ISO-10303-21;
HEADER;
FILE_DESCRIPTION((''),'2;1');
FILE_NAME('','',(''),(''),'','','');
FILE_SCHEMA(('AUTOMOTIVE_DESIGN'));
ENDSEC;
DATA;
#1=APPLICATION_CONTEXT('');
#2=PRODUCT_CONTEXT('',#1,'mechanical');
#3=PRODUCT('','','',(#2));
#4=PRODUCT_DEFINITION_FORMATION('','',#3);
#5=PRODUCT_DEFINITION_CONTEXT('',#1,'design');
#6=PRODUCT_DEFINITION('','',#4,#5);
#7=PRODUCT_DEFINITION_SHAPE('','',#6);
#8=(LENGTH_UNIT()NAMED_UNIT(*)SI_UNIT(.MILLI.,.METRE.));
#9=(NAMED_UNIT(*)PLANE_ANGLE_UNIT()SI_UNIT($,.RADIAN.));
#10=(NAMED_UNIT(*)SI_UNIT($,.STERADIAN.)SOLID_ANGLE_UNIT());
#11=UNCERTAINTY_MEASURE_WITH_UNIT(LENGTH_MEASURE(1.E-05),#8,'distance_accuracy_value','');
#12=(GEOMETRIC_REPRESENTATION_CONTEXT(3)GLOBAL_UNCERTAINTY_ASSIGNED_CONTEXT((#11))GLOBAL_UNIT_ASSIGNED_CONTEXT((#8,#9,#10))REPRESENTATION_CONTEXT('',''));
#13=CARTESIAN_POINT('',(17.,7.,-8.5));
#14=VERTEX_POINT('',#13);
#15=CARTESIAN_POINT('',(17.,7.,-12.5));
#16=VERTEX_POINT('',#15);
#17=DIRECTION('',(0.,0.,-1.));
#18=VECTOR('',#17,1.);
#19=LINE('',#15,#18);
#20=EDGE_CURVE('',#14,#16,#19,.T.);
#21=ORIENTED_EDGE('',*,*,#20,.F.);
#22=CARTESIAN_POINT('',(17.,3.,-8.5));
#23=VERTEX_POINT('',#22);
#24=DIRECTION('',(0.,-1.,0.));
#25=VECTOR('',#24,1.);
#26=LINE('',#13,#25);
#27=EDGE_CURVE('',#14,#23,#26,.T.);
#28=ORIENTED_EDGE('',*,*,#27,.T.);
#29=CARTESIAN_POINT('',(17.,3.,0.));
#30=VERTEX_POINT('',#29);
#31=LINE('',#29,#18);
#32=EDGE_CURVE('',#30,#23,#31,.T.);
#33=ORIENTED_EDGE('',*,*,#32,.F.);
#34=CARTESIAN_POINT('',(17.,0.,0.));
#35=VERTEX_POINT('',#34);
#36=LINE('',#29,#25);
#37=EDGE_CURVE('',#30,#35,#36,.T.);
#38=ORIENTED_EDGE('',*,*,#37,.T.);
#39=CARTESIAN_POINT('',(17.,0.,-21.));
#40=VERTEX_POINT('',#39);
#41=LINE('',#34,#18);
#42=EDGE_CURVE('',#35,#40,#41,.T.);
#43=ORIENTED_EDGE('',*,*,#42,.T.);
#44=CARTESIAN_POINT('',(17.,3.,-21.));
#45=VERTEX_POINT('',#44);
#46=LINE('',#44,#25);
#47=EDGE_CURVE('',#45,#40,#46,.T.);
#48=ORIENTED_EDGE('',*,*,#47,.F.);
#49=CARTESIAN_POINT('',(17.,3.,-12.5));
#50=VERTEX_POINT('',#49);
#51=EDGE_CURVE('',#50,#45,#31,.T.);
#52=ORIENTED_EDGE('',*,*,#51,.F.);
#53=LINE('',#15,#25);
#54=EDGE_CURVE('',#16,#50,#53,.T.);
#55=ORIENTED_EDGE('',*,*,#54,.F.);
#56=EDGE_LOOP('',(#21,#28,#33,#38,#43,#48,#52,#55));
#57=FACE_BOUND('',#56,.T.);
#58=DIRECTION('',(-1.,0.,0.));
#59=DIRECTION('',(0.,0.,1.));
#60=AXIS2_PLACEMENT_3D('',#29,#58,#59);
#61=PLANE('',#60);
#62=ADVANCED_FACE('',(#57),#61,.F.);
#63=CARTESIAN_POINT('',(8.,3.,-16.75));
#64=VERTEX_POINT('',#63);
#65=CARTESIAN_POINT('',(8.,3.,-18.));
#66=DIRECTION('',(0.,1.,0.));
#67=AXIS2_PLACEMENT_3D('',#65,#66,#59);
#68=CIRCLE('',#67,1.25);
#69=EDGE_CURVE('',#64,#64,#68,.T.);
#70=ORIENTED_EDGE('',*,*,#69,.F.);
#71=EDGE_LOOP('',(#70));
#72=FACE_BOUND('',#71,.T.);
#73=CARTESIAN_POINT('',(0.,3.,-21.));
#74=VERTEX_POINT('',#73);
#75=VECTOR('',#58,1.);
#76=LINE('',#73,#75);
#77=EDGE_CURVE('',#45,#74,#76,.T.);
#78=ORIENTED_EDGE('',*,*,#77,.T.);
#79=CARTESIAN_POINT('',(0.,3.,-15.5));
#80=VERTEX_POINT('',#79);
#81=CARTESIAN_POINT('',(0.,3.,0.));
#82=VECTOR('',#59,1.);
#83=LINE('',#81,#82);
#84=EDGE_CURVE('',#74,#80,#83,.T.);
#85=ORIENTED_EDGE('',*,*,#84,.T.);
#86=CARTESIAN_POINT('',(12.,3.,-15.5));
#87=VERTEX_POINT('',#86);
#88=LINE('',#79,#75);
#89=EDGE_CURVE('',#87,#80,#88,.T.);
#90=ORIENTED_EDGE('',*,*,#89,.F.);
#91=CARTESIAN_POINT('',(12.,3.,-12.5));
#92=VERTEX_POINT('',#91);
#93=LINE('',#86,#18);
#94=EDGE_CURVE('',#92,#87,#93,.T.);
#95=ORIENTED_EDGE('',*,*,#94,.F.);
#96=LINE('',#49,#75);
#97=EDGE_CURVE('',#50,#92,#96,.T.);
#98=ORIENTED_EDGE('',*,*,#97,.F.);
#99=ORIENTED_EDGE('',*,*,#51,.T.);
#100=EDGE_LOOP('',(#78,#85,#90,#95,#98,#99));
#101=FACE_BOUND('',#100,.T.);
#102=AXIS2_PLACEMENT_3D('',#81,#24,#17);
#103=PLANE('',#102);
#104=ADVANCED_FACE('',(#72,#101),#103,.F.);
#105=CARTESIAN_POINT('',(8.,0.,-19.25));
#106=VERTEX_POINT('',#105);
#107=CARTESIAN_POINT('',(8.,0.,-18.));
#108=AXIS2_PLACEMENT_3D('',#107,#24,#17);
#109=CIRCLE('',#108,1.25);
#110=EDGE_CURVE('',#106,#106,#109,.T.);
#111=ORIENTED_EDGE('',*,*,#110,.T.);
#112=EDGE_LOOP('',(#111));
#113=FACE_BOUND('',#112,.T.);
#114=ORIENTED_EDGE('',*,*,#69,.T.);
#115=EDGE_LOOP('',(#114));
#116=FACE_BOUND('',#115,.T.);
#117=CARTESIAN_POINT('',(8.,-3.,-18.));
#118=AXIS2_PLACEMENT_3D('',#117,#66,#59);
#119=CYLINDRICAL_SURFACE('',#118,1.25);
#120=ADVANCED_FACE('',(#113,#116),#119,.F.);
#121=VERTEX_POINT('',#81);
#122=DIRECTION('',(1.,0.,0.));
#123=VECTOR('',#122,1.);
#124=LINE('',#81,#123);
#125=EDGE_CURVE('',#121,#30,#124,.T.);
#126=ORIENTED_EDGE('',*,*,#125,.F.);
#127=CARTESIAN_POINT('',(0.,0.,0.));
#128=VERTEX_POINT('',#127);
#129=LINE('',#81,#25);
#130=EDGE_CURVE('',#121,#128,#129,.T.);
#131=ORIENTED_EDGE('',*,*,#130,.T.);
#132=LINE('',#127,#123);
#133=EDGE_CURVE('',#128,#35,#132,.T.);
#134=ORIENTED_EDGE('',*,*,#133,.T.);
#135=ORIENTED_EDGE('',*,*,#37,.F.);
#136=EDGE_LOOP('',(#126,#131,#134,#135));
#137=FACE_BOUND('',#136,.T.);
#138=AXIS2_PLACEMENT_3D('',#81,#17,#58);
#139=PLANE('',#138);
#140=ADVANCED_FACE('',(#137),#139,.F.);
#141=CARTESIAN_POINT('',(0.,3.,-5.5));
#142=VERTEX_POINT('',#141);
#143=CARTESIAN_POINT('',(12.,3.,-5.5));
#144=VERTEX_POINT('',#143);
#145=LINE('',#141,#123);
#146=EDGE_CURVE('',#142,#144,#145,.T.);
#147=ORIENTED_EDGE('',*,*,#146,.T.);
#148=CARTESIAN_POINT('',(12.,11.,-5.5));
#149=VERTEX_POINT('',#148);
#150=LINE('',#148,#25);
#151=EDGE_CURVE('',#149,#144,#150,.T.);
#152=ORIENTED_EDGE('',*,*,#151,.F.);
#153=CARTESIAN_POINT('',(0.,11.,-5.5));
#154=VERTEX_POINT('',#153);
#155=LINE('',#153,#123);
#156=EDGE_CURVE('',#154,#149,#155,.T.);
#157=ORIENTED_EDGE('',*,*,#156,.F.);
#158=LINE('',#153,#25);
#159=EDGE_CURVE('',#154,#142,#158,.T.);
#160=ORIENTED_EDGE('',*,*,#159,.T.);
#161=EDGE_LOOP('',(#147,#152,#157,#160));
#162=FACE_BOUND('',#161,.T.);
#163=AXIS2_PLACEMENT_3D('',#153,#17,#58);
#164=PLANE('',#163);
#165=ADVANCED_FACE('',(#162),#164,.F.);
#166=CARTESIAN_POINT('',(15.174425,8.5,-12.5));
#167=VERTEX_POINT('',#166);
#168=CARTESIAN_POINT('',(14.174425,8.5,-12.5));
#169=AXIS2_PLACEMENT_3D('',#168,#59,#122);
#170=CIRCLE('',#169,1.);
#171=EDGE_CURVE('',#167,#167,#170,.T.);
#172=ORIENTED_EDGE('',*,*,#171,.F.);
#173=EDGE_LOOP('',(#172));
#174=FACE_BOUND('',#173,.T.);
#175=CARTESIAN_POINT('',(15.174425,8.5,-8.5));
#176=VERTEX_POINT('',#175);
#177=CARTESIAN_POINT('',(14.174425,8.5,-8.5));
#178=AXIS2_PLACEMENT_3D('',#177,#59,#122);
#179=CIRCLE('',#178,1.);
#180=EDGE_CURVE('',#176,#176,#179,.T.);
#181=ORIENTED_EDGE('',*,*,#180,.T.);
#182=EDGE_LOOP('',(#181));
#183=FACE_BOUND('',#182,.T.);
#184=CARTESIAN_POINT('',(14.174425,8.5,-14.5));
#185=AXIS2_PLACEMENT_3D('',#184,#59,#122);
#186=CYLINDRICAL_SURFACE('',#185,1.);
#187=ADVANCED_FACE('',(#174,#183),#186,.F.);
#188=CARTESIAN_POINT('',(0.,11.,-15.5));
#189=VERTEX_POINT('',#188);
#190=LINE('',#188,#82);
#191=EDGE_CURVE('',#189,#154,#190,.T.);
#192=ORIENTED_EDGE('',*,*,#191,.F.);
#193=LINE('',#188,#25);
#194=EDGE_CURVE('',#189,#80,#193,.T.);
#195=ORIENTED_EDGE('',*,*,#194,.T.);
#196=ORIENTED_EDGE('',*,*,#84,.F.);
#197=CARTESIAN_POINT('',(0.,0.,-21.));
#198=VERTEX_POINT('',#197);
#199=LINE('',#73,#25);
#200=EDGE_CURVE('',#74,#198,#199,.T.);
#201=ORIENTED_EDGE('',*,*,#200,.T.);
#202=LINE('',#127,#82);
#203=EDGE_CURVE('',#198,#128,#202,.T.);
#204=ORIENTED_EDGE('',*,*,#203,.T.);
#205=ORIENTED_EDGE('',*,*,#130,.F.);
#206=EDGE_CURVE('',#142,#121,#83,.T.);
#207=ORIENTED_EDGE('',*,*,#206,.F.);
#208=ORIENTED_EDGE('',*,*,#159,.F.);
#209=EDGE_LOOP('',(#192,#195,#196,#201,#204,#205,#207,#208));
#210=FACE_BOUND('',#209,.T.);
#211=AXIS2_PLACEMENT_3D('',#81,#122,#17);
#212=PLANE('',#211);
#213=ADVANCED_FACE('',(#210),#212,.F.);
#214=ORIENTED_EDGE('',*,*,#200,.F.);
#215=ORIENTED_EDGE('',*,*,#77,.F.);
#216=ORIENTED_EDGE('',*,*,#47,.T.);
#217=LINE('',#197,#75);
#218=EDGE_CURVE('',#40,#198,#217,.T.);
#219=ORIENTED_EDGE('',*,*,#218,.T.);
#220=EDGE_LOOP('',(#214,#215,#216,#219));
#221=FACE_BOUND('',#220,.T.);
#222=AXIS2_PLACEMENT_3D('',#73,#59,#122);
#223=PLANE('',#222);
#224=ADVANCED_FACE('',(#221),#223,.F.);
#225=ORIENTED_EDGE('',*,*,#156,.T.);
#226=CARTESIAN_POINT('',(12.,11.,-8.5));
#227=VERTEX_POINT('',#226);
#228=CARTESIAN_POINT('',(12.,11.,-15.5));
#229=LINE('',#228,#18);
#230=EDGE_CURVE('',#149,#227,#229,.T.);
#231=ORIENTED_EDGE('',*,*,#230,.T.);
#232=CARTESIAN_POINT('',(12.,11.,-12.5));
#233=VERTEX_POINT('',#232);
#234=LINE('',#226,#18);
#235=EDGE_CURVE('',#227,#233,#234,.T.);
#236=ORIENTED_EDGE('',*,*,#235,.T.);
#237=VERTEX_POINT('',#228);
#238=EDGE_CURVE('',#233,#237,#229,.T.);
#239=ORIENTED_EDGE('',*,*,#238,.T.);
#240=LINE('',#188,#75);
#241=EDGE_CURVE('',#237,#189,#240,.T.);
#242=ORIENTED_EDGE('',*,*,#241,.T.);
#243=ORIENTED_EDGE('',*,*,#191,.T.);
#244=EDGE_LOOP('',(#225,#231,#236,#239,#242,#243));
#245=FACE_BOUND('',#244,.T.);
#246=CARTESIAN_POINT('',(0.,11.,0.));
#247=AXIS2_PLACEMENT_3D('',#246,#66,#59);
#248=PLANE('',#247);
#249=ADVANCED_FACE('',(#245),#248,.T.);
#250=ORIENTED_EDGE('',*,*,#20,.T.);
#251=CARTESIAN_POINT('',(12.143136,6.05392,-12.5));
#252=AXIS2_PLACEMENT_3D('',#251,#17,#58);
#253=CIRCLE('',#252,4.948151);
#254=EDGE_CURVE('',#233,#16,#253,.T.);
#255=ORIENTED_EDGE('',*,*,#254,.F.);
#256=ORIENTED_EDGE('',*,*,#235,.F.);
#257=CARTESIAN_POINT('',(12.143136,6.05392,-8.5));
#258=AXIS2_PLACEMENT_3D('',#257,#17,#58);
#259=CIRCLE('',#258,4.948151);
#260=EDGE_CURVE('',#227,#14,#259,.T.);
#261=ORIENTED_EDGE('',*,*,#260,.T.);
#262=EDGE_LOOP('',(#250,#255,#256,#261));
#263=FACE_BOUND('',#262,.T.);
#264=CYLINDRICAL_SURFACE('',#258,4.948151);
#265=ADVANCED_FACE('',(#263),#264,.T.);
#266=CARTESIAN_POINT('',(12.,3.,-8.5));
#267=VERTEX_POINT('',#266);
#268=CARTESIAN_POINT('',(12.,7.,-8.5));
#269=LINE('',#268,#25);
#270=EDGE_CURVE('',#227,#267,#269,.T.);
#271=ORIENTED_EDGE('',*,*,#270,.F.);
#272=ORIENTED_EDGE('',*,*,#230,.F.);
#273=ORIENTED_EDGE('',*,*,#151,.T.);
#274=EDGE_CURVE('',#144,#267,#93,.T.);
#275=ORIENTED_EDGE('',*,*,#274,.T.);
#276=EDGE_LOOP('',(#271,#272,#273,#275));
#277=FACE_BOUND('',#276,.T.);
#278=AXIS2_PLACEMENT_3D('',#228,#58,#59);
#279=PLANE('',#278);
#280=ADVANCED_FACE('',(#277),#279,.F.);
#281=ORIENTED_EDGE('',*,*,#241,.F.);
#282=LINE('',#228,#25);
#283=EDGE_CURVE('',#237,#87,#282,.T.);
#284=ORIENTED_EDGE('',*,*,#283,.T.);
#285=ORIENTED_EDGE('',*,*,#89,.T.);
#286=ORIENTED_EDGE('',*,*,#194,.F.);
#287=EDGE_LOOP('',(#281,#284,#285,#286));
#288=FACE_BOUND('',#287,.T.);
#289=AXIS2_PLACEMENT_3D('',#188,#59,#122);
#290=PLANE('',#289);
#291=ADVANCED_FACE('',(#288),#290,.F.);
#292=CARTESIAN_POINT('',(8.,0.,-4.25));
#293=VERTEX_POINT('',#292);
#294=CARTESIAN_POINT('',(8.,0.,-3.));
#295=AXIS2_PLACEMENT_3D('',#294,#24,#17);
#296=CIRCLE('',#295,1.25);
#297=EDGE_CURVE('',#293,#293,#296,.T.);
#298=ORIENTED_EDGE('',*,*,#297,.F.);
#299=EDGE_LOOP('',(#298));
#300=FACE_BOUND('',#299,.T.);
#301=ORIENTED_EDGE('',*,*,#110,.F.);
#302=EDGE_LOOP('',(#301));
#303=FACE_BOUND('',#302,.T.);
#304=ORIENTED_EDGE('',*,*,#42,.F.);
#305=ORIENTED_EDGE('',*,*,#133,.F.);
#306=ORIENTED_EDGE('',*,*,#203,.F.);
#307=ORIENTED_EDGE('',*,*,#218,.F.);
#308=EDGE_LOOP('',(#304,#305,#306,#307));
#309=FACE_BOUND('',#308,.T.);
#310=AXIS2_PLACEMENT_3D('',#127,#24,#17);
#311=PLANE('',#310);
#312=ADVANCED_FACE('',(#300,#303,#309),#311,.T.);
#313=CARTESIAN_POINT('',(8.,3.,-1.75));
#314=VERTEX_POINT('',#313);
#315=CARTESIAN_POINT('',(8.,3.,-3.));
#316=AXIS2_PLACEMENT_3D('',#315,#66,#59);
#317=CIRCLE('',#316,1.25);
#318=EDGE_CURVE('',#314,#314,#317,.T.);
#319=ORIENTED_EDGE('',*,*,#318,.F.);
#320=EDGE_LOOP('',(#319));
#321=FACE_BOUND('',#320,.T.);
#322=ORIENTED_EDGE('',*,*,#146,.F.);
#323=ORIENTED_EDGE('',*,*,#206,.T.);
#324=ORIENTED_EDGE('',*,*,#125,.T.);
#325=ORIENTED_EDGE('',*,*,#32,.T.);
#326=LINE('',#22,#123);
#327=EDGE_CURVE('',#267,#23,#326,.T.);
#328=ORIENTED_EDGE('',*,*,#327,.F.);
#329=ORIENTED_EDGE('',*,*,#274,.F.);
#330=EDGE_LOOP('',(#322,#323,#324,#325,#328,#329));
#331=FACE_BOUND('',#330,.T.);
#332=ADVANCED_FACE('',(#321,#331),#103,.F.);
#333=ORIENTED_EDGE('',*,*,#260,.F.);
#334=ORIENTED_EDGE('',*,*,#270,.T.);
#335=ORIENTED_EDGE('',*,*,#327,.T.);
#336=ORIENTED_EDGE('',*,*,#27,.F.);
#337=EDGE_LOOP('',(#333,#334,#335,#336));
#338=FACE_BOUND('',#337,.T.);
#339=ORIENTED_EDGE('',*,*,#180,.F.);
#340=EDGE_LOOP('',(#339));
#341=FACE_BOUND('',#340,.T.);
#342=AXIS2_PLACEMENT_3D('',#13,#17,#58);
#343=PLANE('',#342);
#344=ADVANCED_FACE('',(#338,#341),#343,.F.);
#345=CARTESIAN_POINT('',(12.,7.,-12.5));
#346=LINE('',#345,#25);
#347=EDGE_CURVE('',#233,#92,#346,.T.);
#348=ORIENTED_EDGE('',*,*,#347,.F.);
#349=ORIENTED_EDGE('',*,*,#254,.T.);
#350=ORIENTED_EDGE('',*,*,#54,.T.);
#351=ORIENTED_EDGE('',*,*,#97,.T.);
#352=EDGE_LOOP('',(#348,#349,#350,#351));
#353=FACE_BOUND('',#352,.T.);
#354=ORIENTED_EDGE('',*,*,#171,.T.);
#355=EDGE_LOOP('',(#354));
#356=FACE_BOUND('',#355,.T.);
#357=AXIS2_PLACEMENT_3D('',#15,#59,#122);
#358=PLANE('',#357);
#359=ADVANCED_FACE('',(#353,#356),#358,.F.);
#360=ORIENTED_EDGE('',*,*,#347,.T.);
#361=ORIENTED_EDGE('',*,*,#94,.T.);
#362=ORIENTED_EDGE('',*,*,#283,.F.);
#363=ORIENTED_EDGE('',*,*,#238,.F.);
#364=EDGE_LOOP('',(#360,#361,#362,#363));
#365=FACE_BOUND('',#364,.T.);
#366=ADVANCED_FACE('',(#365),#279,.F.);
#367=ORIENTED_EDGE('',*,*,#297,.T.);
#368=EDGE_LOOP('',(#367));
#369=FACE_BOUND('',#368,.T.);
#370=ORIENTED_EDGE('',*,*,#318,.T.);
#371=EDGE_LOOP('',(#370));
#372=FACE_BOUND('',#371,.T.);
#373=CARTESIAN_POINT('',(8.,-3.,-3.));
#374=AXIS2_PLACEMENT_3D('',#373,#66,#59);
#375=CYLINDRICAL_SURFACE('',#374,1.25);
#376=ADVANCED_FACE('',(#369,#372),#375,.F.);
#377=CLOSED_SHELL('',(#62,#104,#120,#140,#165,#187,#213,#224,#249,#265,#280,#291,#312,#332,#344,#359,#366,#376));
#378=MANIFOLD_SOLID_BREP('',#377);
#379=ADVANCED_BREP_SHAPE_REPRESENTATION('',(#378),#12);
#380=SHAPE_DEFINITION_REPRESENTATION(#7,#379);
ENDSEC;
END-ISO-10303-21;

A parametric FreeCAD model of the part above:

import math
import FreeCAD as App
import Part
import Sketcher
from FreeCAD import Vector
Q = App.Units.Quantity

doc = App.newDocument("Part")
body = doc.addObject("PartDesign::Body", "Body")

# Sketch on XZ plane
sketch1 = doc.addObject("Sketcher::SketchObject", "Sketch")
body.addObject(sketch1)
sketch1.AttachmentSupport = (doc.XZ_Plane, [""])
sketch1.MapMode = "FlatFace"
sketch1.addGeometry([
    Part.LineSegment(Vector(0, -21, 0), Vector(0, 0, 0)),
    Part.LineSegment(Vector(0, 0, 0), Vector(17, 0, 0)),
    Part.LineSegment(Vector(17, 0, 0), Vector(17, -21, 0)),
    Part.LineSegment(Vector(17, -21, 0), Vector(0, -21, 0)),
], False)
sketch1.addConstraint([
    Sketcher.Constraint("Coincident", 0, 2, 1, 1),
    Sketcher.Constraint("Coincident", 1, 2, 2, 1),
    Sketcher.Constraint("Coincident", 2, 2, 3, 1),
    Sketcher.Constraint("Coincident", 3, 2, 0, 1),
    Sketcher.Constraint("Vertical", 0),
    Sketcher.Constraint("Horizontal", 1),
    Sketcher.Constraint("Vertical", 2),
    Sketcher.Constraint("Horizontal", 3),
    Sketcher.Constraint("Coincident", 0, 2, -1, 1),
    Sketcher.Constraint("DistanceX", 1, 1, 1, 2, Q("17 mm")),
    Sketcher.Constraint("DistanceY", 0, 1, 0, 2, Q("21 mm")),
])
pad1 = doc.addObject("PartDesign::Pad", "Pad")
body.addObject(pad1)
pad1.Profile = sketch1
pad1.Length = 3
pad1.Reversed = True

# Sketch on XZ plane
sketch2 = doc.addObject("Sketcher::SketchObject", "Sketch001")
body.addObject(sketch2)
sketch2.AttachmentSupport = (doc.XZ_Plane, [""])
sketch2.MapMode = "FlatFace"
sketch2.AttachmentOffset = App.Placement(Vector(0, 0, -3), App.Rotation())
sketch2.addGeometry(Part.Circle(Vector(8, -18, 0), Vector(0, 0, 1), 1.2), False)
sketch2.addConstraint([
    Sketcher.Constraint("Diameter", 0, Q("2.5 mm")),
    Sketcher.Constraint("DistanceX", -1, 1, 0, 3, Q("8 mm")),
    Sketcher.Constraint("DistanceY", 0, 3, -1, 1, Q("18 mm")),
])
pocket1 = doc.addObject("PartDesign::Pocket", "Pocket")
body.addObject(pocket1)
pocket1.Profile = sketch2
pocket1.Length = 6
pocket1.Reversed = True

# Sketch on XZ plane
sketch3 = doc.addObject("Sketcher::SketchObject", "Sketch002")
body.addObject(sketch3)
sketch3.AttachmentSupport = (doc.XZ_Plane, [""])
sketch3.MapMode = "FlatFace"
sketch3.AttachmentOffset = App.Placement(Vector(0, 0, -3), App.Rotation())
sketch3.addGeometry(Part.Circle(Vector(8, -3, 0), Vector(0, 0, 1), 1.2), False)
sketch3.addConstraint([
    Sketcher.Constraint("Diameter", 0, Q("2.5 mm")),
    Sketcher.Constraint("DistanceX", -1, 1, 0, 3, Q("8 mm")),
    Sketcher.Constraint("DistanceY", 0, 3, -1, 1, Q("3 mm")),
])
pocket2 = doc.addObject("PartDesign::Pocket", "Pocket001")
body.addObject(pocket2)
pocket2.Profile = sketch3
pocket2.Length = 6
pocket2.Reversed = True

# Sketch on XZ plane
sketch4 = doc.addObject("Sketcher::SketchObject", "Sketch003")
body.addObject(sketch4)
sketch4.AttachmentSupport = (doc.XZ_Plane, [""])
sketch4.MapMode = "FlatFace"
sketch4.AttachmentOffset = App.Placement(Vector(0, 0, -3), App.Rotation())
sketch4.addGeometry([
    Part.LineSegment(Vector(0, -16, 0), Vector(0, -6, 0)),
    Part.LineSegment(Vector(0, -6, 0), Vector(12, -6, 0)),
    Part.LineSegment(Vector(12, -6, 0), Vector(12, -16, 0)),
    Part.LineSegment(Vector(12, -16, 0), Vector(0, -16, 0)),
], False)
sketch4.addConstraint([
    Sketcher.Constraint("Coincident", 0, 2, 1, 1),
    Sketcher.Constraint("Coincident", 1, 2, 2, 1),
    Sketcher.Constraint("Coincident", 2, 2, 3, 1),
    Sketcher.Constraint("Coincident", 3, 2, 0, 1),
    Sketcher.Constraint("Vertical", 0),
    Sketcher.Constraint("Horizontal", 1),
    Sketcher.Constraint("Vertical", 2),
    Sketcher.Constraint("Horizontal", 3),
    Sketcher.Constraint("PointOnObject", 0, 2, -2),
    Sketcher.Constraint("DistanceX", 1, 1, 1, 2, Q("12 mm")),
    Sketcher.Constraint("DistanceY", 0, 1, 0, 2, Q("10 mm")),
    Sketcher.Constraint("DistanceY", 0, 2, -1, 1, Q("5.5 mm")),
])
pad2 = doc.addObject("PartDesign::Pad", "Pad001")
body.addObject(pad2)
pad2.Profile = sketch4
pad2.Length = 8
pad2.Reversed = True

# Sketch on XZ plane
sketch5 = doc.addObject("Sketcher::SketchObject", "Sketch004")
body.addObject(sketch5)
sketch5.AttachmentSupport = (doc.XZ_Plane, [""])
sketch5.MapMode = "FlatFace"
sketch5.AttachmentOffset = App.Placement(Vector(0, 0, -3), App.Rotation())
sketch5.addGeometry([
    Part.LineSegment(Vector(12, -12.5, 0), Vector(12, -8.5, 0)),
    Part.LineSegment(Vector(12, -8.5, 0), Vector(17, -8.5, 0)),
    Part.LineSegment(Vector(17, -8.5, 0), Vector(17, -12.5, 0)),
    Part.LineSegment(Vector(17, -12.5, 0), Vector(12, -12.5, 0)),
], False)
sketch5.addConstraint([
    Sketcher.Constraint("Coincident", 0, 2, 1, 1),
    Sketcher.Constraint("Coincident", 1, 2, 2, 1),
    Sketcher.Constraint("Coincident", 2, 2, 3, 1),
    Sketcher.Constraint("Coincident", 3, 2, 0, 1),
    Sketcher.Constraint("Vertical", 0),
    Sketcher.Constraint("Horizontal", 1),
    Sketcher.Constraint("Vertical", 2),
    Sketcher.Constraint("Horizontal", 3),
    Sketcher.Constraint("DistanceX", 1, 1, 1, 2, Q("5 mm")),
    Sketcher.Constraint("DistanceY", 0, 1, 0, 2, Q("4 mm")),
    Sketcher.Constraint("DistanceX", -1, 1, 0, 2, Q("12 mm")),
    Sketcher.Constraint("DistanceY", 0, 2, -1, 1, Q("8.5 mm")),
])
pad3 = doc.addObject("PartDesign::Pad", "Pad002")
body.addObject(pad3)
pad3.Profile = sketch5
pad3.Length = 4
pad3.Reversed = True

# Sketch on XY plane
sketch6 = doc.addObject("Sketcher::SketchObject", "Sketch005")
body.addObject(sketch6)
sketch6.AttachmentSupport = (doc.XY_Plane, [""])
sketch6.MapMode = "FlatFace"
sketch6.AttachmentOffset = App.Placement(Vector(0, 0, -12.5), App.Rotation())
sketch6.addGeometry([
    Part.LineSegment(Vector(17, 7, 0), Vector(12, 7, 0)),
    Part.LineSegment(Vector(12, 7, 0), Vector(12, 11, 0)),
    Part.ArcOfCircle(Part.Circle(Vector(12.1, 6.1, 0), Vector(0, 0, 1), 4.9), math.radians(11), math.radians(92)),
], False)
sketch6.addConstraint([
    Sketcher.Constraint("Coincident", 0, 2, 1, 1),
    Sketcher.Constraint("Coincident", 1, 2, 2, 2),
    Sketcher.Constraint("Coincident", 2, 1, 0, 1),
    Sketcher.Constraint("Horizontal", 0),
    Sketcher.Constraint("Vertical", 1),
    Sketcher.Constraint("DistanceX", 0, 2, 0, 1, Q("5 mm")),
    Sketcher.Constraint("DistanceY", 1, 1, 1, 2, Q("4 mm")),
    Sketcher.Constraint("DistanceX", -1, 1, 0, 2, Q("12 mm")),
    Sketcher.Constraint("DistanceY", -1, 1, 0, 2, Q("7 mm")),
    Sketcher.Constraint("Radius", 2, Q("4.948151 mm")),
])
pad4 = doc.addObject("PartDesign::Pad", "Pad003")
body.addObject(pad4)
pad4.Profile = sketch6
pad4.Length = 4

# Sketch on XY plane
sketch7 = doc.addObject("Sketcher::SketchObject", "Sketch006")
body.addObject(sketch7)
sketch7.AttachmentSupport = (doc.XY_Plane, [""])
sketch7.MapMode = "FlatFace"
sketch7.AttachmentOffset = App.Placement(Vector(0, 0, -8.5), App.Rotation())
sketch7.addGeometry(Part.Circle(Vector(14.2, 8.5, 0), Vector(0, 0, 1), 1), False)
sketch7.addConstraint([
    Sketcher.Constraint("Diameter", 0, Q("2 mm")),
    Sketcher.Constraint("DistanceY", -1, 1, 0, 3, Q("8.5 mm")),
    Sketcher.Constraint("DistanceX", -1, 1, 0, 3, Q("14.174425 mm")),
])
pocket3 = doc.addObject("PartDesign::Pocket", "Pocket002")
body.addObject(pocket3)
pocket3.Profile = sketch7
pocket3.Length = 6

doc.recompute()
